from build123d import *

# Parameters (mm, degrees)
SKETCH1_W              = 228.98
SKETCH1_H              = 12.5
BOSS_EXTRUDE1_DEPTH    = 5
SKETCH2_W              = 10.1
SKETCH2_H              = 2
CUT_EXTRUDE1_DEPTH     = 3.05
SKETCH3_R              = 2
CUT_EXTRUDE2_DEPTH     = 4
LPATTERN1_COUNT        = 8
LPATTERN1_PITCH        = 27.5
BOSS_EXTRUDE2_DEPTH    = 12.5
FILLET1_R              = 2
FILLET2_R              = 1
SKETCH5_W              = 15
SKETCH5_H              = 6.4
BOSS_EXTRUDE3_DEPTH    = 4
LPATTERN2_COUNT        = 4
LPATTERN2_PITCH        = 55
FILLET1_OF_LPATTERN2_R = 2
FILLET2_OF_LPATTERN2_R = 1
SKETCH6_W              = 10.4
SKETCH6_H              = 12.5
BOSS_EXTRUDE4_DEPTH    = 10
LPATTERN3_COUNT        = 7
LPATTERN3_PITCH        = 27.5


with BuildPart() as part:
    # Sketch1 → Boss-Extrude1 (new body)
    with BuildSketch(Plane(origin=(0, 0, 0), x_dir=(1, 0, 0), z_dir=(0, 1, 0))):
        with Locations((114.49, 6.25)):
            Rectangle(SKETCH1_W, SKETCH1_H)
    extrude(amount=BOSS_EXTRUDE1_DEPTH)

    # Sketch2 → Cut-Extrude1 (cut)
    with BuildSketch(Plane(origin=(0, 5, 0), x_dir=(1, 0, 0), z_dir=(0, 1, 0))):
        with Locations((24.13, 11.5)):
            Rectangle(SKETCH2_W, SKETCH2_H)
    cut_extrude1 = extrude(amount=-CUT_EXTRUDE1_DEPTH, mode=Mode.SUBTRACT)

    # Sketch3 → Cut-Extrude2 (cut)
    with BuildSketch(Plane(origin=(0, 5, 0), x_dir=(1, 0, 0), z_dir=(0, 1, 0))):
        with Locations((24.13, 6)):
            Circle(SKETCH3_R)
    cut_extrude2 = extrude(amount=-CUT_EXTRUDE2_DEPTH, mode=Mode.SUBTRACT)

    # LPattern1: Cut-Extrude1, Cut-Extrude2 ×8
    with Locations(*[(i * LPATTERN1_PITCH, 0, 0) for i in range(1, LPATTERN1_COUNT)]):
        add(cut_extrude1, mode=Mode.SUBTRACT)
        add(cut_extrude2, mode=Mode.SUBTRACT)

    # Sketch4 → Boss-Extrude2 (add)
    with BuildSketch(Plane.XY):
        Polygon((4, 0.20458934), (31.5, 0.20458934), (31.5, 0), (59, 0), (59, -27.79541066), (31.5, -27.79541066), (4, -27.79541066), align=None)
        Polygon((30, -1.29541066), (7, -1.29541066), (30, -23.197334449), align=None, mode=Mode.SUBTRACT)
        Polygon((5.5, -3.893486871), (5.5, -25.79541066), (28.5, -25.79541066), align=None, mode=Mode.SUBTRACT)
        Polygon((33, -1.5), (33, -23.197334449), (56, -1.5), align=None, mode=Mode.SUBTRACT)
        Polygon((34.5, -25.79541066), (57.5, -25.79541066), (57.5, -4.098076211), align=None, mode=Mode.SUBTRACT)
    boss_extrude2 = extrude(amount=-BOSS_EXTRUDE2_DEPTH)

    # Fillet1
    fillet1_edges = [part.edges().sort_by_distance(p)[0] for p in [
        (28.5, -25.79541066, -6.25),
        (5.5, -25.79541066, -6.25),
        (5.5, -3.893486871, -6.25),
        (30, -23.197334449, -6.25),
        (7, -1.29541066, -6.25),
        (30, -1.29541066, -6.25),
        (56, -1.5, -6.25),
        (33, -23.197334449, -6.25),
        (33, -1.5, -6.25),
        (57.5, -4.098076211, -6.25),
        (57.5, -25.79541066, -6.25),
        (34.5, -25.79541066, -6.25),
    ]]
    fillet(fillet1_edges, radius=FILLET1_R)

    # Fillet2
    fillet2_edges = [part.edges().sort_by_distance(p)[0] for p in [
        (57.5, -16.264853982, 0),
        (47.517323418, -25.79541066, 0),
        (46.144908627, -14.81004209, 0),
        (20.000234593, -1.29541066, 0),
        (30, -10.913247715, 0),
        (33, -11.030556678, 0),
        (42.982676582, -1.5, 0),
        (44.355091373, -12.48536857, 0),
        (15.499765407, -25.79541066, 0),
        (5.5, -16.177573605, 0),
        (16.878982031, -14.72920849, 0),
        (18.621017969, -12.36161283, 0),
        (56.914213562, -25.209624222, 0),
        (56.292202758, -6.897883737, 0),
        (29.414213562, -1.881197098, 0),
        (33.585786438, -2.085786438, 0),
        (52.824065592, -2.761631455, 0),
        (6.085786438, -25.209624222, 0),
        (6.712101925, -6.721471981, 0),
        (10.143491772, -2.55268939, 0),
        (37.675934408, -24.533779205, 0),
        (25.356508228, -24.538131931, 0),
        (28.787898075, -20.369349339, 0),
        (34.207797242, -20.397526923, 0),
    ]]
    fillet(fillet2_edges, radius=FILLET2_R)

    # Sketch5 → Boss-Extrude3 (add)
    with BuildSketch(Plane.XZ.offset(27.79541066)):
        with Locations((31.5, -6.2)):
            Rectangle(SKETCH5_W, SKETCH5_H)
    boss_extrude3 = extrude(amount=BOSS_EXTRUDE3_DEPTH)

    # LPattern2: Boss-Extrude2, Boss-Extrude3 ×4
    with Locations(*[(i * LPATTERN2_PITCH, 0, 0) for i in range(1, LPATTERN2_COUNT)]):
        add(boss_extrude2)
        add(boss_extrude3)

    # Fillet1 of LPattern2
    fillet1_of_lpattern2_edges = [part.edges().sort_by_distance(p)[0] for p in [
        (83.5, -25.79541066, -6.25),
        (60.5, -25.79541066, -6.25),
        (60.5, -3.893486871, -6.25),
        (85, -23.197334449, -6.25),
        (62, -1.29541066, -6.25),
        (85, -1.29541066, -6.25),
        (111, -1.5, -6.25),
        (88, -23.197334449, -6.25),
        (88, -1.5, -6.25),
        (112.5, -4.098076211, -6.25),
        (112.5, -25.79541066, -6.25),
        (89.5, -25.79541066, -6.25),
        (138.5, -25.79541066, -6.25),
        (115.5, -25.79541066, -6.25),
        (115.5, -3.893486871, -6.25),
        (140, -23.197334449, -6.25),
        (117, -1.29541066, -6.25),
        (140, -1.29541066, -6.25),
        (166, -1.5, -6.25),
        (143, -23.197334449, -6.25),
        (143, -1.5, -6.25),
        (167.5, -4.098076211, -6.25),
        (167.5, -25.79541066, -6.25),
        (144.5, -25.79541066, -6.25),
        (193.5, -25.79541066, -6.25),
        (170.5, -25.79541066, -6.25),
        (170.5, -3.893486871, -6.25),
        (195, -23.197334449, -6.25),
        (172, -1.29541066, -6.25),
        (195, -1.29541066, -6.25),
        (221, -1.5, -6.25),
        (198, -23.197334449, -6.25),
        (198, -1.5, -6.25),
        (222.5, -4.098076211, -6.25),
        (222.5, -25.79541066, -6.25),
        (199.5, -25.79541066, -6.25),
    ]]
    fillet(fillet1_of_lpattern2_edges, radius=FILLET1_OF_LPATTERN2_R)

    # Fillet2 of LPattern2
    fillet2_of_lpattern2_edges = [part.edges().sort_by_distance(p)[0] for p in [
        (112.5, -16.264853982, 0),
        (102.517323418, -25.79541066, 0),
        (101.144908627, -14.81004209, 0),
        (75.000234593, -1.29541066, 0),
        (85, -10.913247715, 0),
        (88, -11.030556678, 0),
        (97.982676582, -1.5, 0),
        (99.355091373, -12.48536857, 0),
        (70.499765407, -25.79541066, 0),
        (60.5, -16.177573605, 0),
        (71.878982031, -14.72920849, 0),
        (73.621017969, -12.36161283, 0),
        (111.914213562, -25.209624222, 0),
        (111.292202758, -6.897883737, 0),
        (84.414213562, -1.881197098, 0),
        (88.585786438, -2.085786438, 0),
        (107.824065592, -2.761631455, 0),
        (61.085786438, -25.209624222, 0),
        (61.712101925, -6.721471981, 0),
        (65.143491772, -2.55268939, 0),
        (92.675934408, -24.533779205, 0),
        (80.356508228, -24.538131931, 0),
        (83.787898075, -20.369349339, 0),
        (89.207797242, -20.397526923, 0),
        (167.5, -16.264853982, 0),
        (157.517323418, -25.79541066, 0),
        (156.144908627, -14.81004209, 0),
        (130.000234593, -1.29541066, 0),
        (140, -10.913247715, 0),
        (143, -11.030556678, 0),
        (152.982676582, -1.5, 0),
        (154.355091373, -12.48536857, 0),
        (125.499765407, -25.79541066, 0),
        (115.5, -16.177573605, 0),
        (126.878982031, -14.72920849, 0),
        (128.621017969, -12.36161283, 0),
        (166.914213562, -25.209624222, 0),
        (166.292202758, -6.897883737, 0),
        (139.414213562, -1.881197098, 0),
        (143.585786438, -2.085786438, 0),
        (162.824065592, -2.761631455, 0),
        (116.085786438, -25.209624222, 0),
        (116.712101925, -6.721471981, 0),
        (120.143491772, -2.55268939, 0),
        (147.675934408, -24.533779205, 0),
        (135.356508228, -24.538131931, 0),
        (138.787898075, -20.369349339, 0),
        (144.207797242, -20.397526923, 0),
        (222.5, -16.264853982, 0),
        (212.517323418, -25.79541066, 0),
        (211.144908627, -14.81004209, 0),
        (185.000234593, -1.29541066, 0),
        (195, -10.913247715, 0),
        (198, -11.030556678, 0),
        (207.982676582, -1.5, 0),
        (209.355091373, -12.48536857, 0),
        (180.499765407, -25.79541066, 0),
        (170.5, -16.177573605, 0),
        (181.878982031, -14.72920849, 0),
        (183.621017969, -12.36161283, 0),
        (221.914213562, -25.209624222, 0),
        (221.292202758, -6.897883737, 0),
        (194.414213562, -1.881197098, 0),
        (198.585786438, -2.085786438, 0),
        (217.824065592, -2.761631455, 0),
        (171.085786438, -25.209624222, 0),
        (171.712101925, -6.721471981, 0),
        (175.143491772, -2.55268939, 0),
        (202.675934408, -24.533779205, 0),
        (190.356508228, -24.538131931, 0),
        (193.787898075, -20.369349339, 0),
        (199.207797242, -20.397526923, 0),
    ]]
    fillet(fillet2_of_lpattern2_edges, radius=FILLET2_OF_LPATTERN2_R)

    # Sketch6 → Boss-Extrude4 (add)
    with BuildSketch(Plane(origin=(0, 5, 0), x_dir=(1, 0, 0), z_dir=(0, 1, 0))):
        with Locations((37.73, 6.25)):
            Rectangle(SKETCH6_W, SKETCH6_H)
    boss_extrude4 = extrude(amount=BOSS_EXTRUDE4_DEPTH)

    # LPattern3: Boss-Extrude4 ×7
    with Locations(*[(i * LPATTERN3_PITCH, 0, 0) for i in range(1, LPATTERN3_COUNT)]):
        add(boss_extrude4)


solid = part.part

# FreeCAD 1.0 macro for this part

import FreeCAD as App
import Part
import Sketcher

V = App.Vector


def edges_at(feature, points):
    """Names of the edges that pass closest to the given points."""
    edges = feature.Shape.Edges
    near = lambda p: min(range(len(edges)), key=lambda i: edges[i].distToShape(Part.Vertex(*p))[0])
    return sorted({f"Edge{near(p) + 1}" for p in points})

doc = App.newDocument("Part")
body = doc.addObject("PartDesign::Body", "Body")

# Sketch on XZ plane
sketch1 = body.newObject("Sketcher::SketchObject", "Sketch")
sketch1.AttachmentSupport = (doc.getObject("XZ_Plane"), [""])
sketch1.MapMode = "FlatFace"
sketch1.addGeometry([
    Part.LineSegment(V(0, -12, 0), V(0, 0, 0)),
    Part.LineSegment(V(0, 0, 0), V(229, 0, 0)),
    Part.LineSegment(V(229, 0, 0), V(229, -12, 0)),
    Part.LineSegment(V(229, -12, 0), V(0, -12, 0)),
], False)
sketch1.addConstraint([
    Sketcher.Constraint("Coincident", 0, 2, 1, 1),
    Sketcher.Constraint("Coincident", 1, 2, 2, 1),
    Sketcher.Constraint("Coincident", 2, 2, 3, 1),
    Sketcher.Constraint("Coincident", 3, 2, 0, 1),
    Sketcher.Constraint("Vertical", 0),
    Sketcher.Constraint("Horizontal", 1),
    Sketcher.Constraint("Vertical", 2),
    Sketcher.Constraint("Horizontal", 3),
    Sketcher.Constraint("Coincident", 0, 2, -1, 1),
    Sketcher.Constraint("DistanceY", 0, 1, 0, 2, 12.5),
    Sketcher.Constraint("DistanceX", 1, 1, 1, 2, 228.98),
])
pad1 = body.newObject("PartDesign::Pad", "Pad")
pad1.Profile = sketch1
pad1.Length = 5
pad1.Reversed = True

# Sketch on XZ plane
sketch2 = body.newObject("Sketcher::SketchObject", "Sketch001")
sketch2.AttachmentSupport = (doc.getObject("XZ_Plane"), [""])
sketch2.MapMode = "FlatFace"
sketch2.AttachmentOffset = App.Placement(V(0, 0, -5), App.Rotation())
sketch2.addGeometry([
    Part.LineSegment(V(19.1, -12.5, 0), V(19.1, -10.5, 0)),
    Part.LineSegment(V(19.1, -10.5, 0), V(29.2, -10.5, 0)),
    Part.LineSegment(V(29.2, -10.5, 0), V(29.2, -12.5, 0)),
    Part.LineSegment(V(29.2, -12.5, 0), V(19.1, -12.5, 0)),
], False)
sketch2.addConstraint([
    Sketcher.Constraint("Coincident", 0, 2, 1, 1),
    Sketcher.Constraint("Coincident", 1, 2, 2, 1),
    Sketcher.Constraint("Coincident", 2, 2, 3, 1),
    Sketcher.Constraint("Coincident", 3, 2, 0, 1),
    Sketcher.Constraint("Vertical", 0),
    Sketcher.Constraint("Horizontal", 1),
    Sketcher.Constraint("Vertical", 2),
    Sketcher.Constraint("Horizontal", 3),
    Sketcher.Constraint("DistanceY", 0, 1, 0, 2, 2.0),
    Sketcher.Constraint("DistanceX", 1, 1, 1, 2, 10.1),
    Sketcher.Constraint("DistanceY", 0, 2, -1, 1, 10.5),
    Sketcher.Constraint("DistanceX", -1, 1, 0, 2, 19.08),
])
pocket1 = body.newObject("PartDesign::Pocket", "Pocket")
pocket1.Profile = sketch2
pocket1.Length = 3.05
pocket1.Reversed = True

# Sketch on XZ plane
sketch3 = body.newObject("Sketcher::SketchObject", "Sketch002")
sketch3.AttachmentSupport = (doc.getObject("XZ_Plane"), [""])
sketch3.MapMode = "FlatFace"
sketch3.AttachmentOffset = App.Placement(V(0, 0, -5), App.Rotation())
sketch3.addGeometry(Part.Circle(V(24.1, -6, 0), V(0, 0, 1), 2), False)
sketch3.addConstraint([
    Sketcher.Constraint("Diameter", 0, 4.0),
    Sketcher.Constraint("DistanceY", 0, 3, -1, 1, 6.0),
    Sketcher.Constraint("DistanceX", -1, 1, 0, 3, 24.13),
])
pocket2 = body.newObject("PartDesign::Pocket", "Pocket001")
pocket2.Profile = sketch3
pocket2.Length = 4
pocket2.Reversed = True
doc.recompute()

linearpattern = body.newObject("PartDesign::LinearPattern", "LinearPattern")
linearpattern.Originals = [pocket1, pocket2]
linearpattern.Direction = (doc.getObject("X_Axis"), [""])
linearpattern.Mode = "offset"
linearpattern.Offset = 27.5
linearpattern.Occurrences = 8
body.Tip = linearpattern

# Sketch on XY plane
sketch4 = body.newObject("Sketcher::SketchObject", "Sketch003")
sketch4.AttachmentSupport = (doc.getObject("XY_Plane"), [""])
sketch4.MapMode = "FlatFace"
sketch4.addGeometry([
    Part.LineSegment(V(31.5, 0.2, 0), V(4, 0.2, 0)),  # 0
    Part.LineSegment(V(4, 0.2, 0), V(4, -27.8, 0)),  # 1
    Part.LineSegment(V(4, -27.8, 0), V(59, -27.8, 0)),  # 2
    Part.LineSegment(V(59, -27.8, 0), V(59, 0, 0)),  # 3
    Part.LineSegment(V(59, 0, 0), V(31.5, 0, 0)),  # 4
    Part.LineSegment(V(31.5, 0, 0), V(31.5, 0.2, 0)),  # 5
    Part.LineSegment(V(34.5, -25.8, 0), V(57.5, -4.1, 0)),  # 6
    Part.LineSegment(V(57.5, -4.1, 0), V(57.5, -25.8, 0)),  # 7
    Part.LineSegment(V(57.5, -25.8, 0), V(34.5, -25.8, 0)),  # 8
    Part.LineSegment(V(5.5, -3.89, 0), V(28.5, -25.8, 0)),  # 9
    Part.LineSegment(V(28.5, -25.8, 0), V(5.5, -25.8, 0)),  # 10
    Part.LineSegment(V(5.5, -25.8, 0), V(5.5, -3.89, 0)),  # 11
    Part.LineSegment(V(33, -1.5, 0), V(56, -1.5, 0)),  # 12
    Part.LineSegment(V(56, -1.5, 0), V(33, -23.2, 0)),  # 13
    Part.LineSegment(V(33, -23.2, 0), V(33, -1.5, 0)),  # 14
    Part.LineSegment(V(30, -1.3, 0), V(30, -23.2, 0)),  # 15
    Part.LineSegment(V(30, -23.2, 0), V(7, -1.3, 0)),  # 16
    Part.LineSegment(V(7, -1.3, 0), V(30, -1.3, 0)),  # 17
], False)
sketch4.addConstraint([
    Sketcher.Constraint("Coincident", 0, 2, 1, 1),
    Sketcher.Constraint("Coincident", 1, 2, 2, 1),
    Sketcher.Constraint("Coincident", 2, 2, 3, 1),
    Sketcher.Constraint("Coincident", 3, 2, 4, 1),
    Sketcher.Constraint("Coincident", 4, 2, 5, 1),
    Sketcher.Constraint("Coincident", 5, 2, 0, 1),
    Sketcher.Constraint("Coincident", 6, 2, 7, 1),
    Sketcher.Constraint("Coincident", 7, 2, 8, 1),
    Sketcher.Constraint("Coincident", 8, 2, 6, 1),
    Sketcher.Constraint("Coincident", 9, 2, 10, 1),
    Sketcher.Constraint("Coincident", 10, 2, 11, 1),
    Sketcher.Constraint("Coincident", 11, 2, 9, 1),
    Sketcher.Constraint("Coincident", 12, 2, 13, 1),
    Sketcher.Constraint("Coincident", 13, 2, 14, 1),
    Sketcher.Constraint("Coincident", 14, 2, 12, 1),
    Sketcher.Constraint("Coincident", 15, 2, 16, 1),
    Sketcher.Constraint("Coincident", 16, 2, 17, 1),
    Sketcher.Constraint("Coincident", 17, 2, 15, 1),
    Sketcher.Constraint("Horizontal", 0),
    Sketcher.Constraint("Vertical", 1),
    Sketcher.Constraint("Horizontal", 2),
    Sketcher.Constraint("Vertical", 3),
    Sketcher.Constraint("Horizontal", 4),
    Sketcher.Constraint("Vertical", 5),
    Sketcher.Constraint("Vertical", 7),
    Sketcher.Constraint("Horizontal", 8),
    Sketcher.Constraint("Horizontal", 10),
    Sketcher.Constraint("Vertical", 11),
    Sketcher.Constraint("Horizontal", 12),
    Sketcher.Constraint("Vertical", 14),
    Sketcher.Constraint("Vertical", 15),
    Sketcher.Constraint("Horizontal", 17),
    Sketcher.Constraint("PointOnObject", 3, 2, -1),
    Sketcher.Constraint("Parallel", 6, 13),
    Sketcher.Constraint("Parallel", 9, 16),
    Sketcher.Constraint("Horizontal", 8, 2, 9, 2),
    Sketcher.Constraint("Horizontal", 13, 2, 15, 2),
    Sketcher.Constraint("Equal", 0, 4),
    Sketcher.Constraint("Equal", 8, 10),
    Sketcher.Constraint("Equal", 10, 12),
    Sketcher.Constraint("Equal", 12, 17),
    Sketcher.Constraint("DistanceX", 2, 1, 2, 2, 55.0),
    Sketcher.Constraint("DistanceX", 8, 2, 8, 1, 23.0),
    Sketcher.Constraint("DistanceY", 1, 2, 1, 1, 28.0),
    Sketcher.Constraint("DistanceX", -1, 1, 0, 2, 4.0),
    Sketcher.Constraint("DistanceX", -1, 1, 12, 2, 56.0),
    Sketcher.Constraint("DistanceX", -1, 1, 15, 2, 30.0),
    Sketcher.Constraint("DistanceX", 4, 2, 6, 2, 26.0),
    Sketcher.Constraint("DistanceY", 2, 2, 7, 2, 2.0),
    Sketcher.Constraint("DistanceX", 9, 2, 8, 2, 6.0),
    Sketcher.Constraint("DistanceY", 12, 2, -1, 1, 1.5),
    Sketcher.Constraint("DistanceY", 16, 2, 0, 2, 1.5),
    Sketcher.Constraint("DistanceY", 3, 1, 3, 2, 27.795411),
    Sketcher.Constraint("Distance", 6, 31.619208),
])
pad2 = body.newObject("PartDesign::Pad", "Pad001")
pad2.Profile = sketch4
pad2.Length = 12.5
pad2.Reversed = True
doc.recompute()

fillet = body.newObject("PartDesign::Fillet", "Fillet")
fillet.Base = (pad2, edges_at(pad2, [
    (28.5, -25.795, -6.25),
    (5.5, -25.795, -6.25),
    (5.5, -3.893, -6.25),
    (30, -23.197, -6.25),
    (7, -1.295, -6.25),
    (30, -1.295, -6.25),
    (56, -1.5, -6.25),
    (33, -23.197, -6.25),
    (33, -1.5, -6.25),
    (57.5, -4.098, -6.25),
    (57.5, -25.795, -6.25),
    (34.5, -25.795, -6.25),
]))
fillet.Radius = 2
doc.recompute()

fillet2 = body.newObject("PartDesign::Fillet", "Fillet001")
fillet2.Base = (fillet, edges_at(fillet, [
    (57.5, -16.265, 0),
    (47.517, -25.795, 0),
    (46.145, -14.81, 0),
    (20, -1.295, 0),
    (30, -10.913, 0),
    (33, -11.031, 0),
    (42.983, -1.5, 0),
    (44.355, -12.485, 0),
    (15.5, -25.795, 0),
    (5.5, -16.178, 0),
    (16.879, -14.729, 0),
    (18.621, -12.362, 0),
    (56.914, -25.21, 0),
    (56.292, -6.898, 0),
    (29.414, -1.881, 0),
    (33.586, -2.086, 0),
    (52.824, -2.762, 0),
    (6.086, -25.21, 0),
    (6.712, -6.721, 0),
    (10.143, -2.553, 0),
    (37.676, -24.534, 0),
    (25.357, -24.538, 0),
    (28.788, -20.369, 0),
    (34.208, -20.398, 0),
]))
fillet2.Radius = 1

# Sketch on XZ plane
sketch5 = body.newObject("Sketcher::SketchObject", "Sketch004")
sketch5.AttachmentSupport = (doc.getObject("XZ_Plane"), [""])
sketch5.MapMode = "FlatFace"
sketch5.AttachmentOffset = App.Placement(V(0, 0, 27.795411), App.Rotation())
sketch5.addGeometry([
    Part.LineSegment(V(24, -3, 0), V(24, -9, 0)),
    Part.LineSegment(V(24, -9, 0), V(39, -9, 0)),
    Part.LineSegment(V(39, -9, 0), V(39, -3, 0)),
    Part.LineSegment(V(39, -3, 0), V(24, -3, 0)),
], False)
sketch5.addConstraint([
    Sketcher.Constraint("Coincident", 0, 2, 1, 1),
    Sketcher.Constraint("Coincident", 1, 2, 2, 1),
    Sketcher.Constraint("Coincident", 2, 2, 3, 1),
    Sketcher.Constraint("Coincident", 3, 2, 0, 1),
    Sketcher.Constraint("Vertical", 0),
    Sketcher.Constraint("Horizontal", 1),
    Sketcher.Constraint("Vertical", 2),
    Sketcher.Constraint("Horizontal", 3),
    Sketcher.Constraint("DistanceX", 1, 1, 1, 2, 15.0),
    Sketcher.Constraint("DistanceY", 0, 2, 0, 1, 6.4),
    Sketcher.Constraint("DistanceX", -1, 1, 0, 2, 24.0),
    Sketcher.Constraint("DistanceY", 2, 2, -1, 1, 3.0),
])
pad3 = body.newObject("PartDesign::Pad", "Pad002")
pad3.Profile = sketch5
pad3.Length = 4
doc.recompute()

linearpattern2 = body.newObject("PartDesign::LinearPattern", "LinearPattern001")
linearpattern2.Originals = [pad2, pad3]
linearpattern2.Direction = (doc.getObject("X_Axis"), [""])
linearpattern2.Mode = "offset"
linearpattern2.Offset = 55
linearpattern2.Occurrences = 4
body.Tip = linearpattern2
doc.recompute()

fillet3 = body.newObject("PartDesign::Fillet", "Fillet002")
fillet3.Base = (linearpattern2, edges_at(linearpattern2, [
    (83.5, -25.795, -6.25),
    (60.5, -25.795, -6.25),
    (60.5, -3.893, -6.25),
    (85, -23.197, -6.25),
    (62, -1.295, -6.25),
    (85, -1.295, -6.25),
    (111, -1.5, -6.25),
    (88, -23.197, -6.25),
    (88, -1.5, -6.25),
    (112.5, -4.098, -6.25),
    (112.5, -25.795, -6.25),
    (89.5, -25.795, -6.25),
    (138.5, -25.795, -6.25),
    (115.5, -25.795, -6.25),
    (115.5, -3.893, -6.25),
    (140, -23.197, -6.25),
    (117, -1.295, -6.25),
    (140, -1.295, -6.25),
    (166, -1.5, -6.25),
    (143, -23.197, -6.25),
    (143, -1.5, -6.25),
    (167.5, -4.098, -6.25),
    (167.5, -25.795, -6.25),
    (144.5, -25.795, -6.25),
    (193.5, -25.795, -6.25),
    (170.5, -25.795, -6.25),
    (170.5, -3.893, -6.25),
    (195, -23.197, -6.25),
    (172, -1.295, -6.25),
    (195, -1.295, -6.25),
    (221, -1.5, -6.25),
    (198, -23.197, -6.25),
    (198, -1.5, -6.25),
    (222.5, -4.098, -6.25),
    (222.5, -25.795, -6.25),
    (199.5, -25.795, -6.25),
]))
fillet3.Radius = 2
doc.recompute()

fillet4 = body.newObject("PartDesign::Fillet", "Fillet003")
fillet4.Base = (fillet3, edges_at(fillet3, [
    (112.5, -16.265, 0),
    (102.517, -25.795, 0),
    (101.145, -14.81, 0),
    (75, -1.295, 0),
    (85, -10.913, 0),
    (88, -11.031, 0),
    (97.983, -1.5, 0),
    (99.355, -12.485, 0),
    (70.5, -25.795, 0),
    (60.5, -16.178, 0),
    (71.879, -14.729, 0),
    (73.621, -12.362, 0),
    (111.914, -25.21, 0),
    (111.292, -6.898, 0),
    (84.414, -1.881, 0),
    (88.586, -2.086, 0),
    (107.824, -2.762, 0),
    (61.086, -25.21, 0),
    (61.712, -6.721, 0),
    (65.143, -2.553, 0),
    (92.676, -24.534, 0),
    (80.357, -24.538, 0),
    (83.788, -20.369, 0),
    (89.208, -20.398, 0),
    (167.5, -16.265, 0),
    (157.517, -25.795, 0),
    (156.145, -14.81, 0),
    (130, -1.295, 0),
    (140, -10.913, 0),
    (143, -11.031, 0),
    (152.983, -1.5, 0),
    (154.355, -12.485, 0),
    (125.5, -25.795, 0),
    (115.5, -16.178, 0),
    (126.879, -14.729, 0),
    (128.621, -12.362, 0),
    (166.914, -25.21, 0),
    (166.292, -6.898, 0),
    (139.414, -1.881, 0),
    (143.586, -2.086, 0),
    (162.824, -2.762, 0),
    (116.086, -25.21, 0),
    (116.712, -6.721, 0),
    (120.143, -2.553, 0),
    (147.676, -24.534, 0),
    (135.357, -24.538, 0),
    (138.788, -20.369, 0),
    (144.208, -20.398, 0),
    (222.5, -16.265, 0),
    (212.517, -25.795, 0),
    (211.145, -14.81, 0),
    (185, -1.295, 0),
    (195, -10.913, 0),
    (198, -11.031, 0),
    (207.983, -1.5, 0),
    (209.355, -12.485, 0),
    (180.5, -25.795, 0),
    (170.5, -16.178, 0),
    (181.879, -14.729, 0),
    (183.621, -12.362, 0),
    (221.914, -25.21, 0),
    (221.292, -6.898, 0),
    (194.414, -1.881, 0),
    (198.586, -2.086, 0),
    (217.824, -2.762, 0),
    (171.086, -25.21, 0),
    (171.712, -6.721, 0),
    (175.143, -2.553, 0),
    (202.676, -24.534, 0),
    (190.357, -24.538, 0),
    (193.788, -20.369, 0),
    (199.208, -20.398, 0),
]))
fillet4.Radius = 1

# Sketch on XZ plane
sketch6 = body.newObject("Sketcher::SketchObject", "Sketch005")
sketch6.AttachmentSupport = (doc.getObject("XZ_Plane"), [""])
sketch6.MapMode = "FlatFace"
sketch6.AttachmentOffset = App.Placement(V(0, 0, -5), App.Rotation())
sketch6.addGeometry([
    Part.LineSegment(V(33, -12, 0), V(33, 0, 0)),
    Part.LineSegment(V(33, 0, 0), V(43, 0, 0)),
    Part.LineSegment(V(43, 0, 0), V(43, -12, 0)),
    Part.LineSegment(V(43, -12, 0), V(33, -12, 0)),
], False)
sketch6.addConstraint([
    Sketcher.Constraint("Coincident", 0, 2, 1, 1),
    Sketcher.Constraint("Coincident", 1, 2, 2, 1),
    Sketcher.Constraint("Coincident", 2, 2, 3, 1),
    Sketcher.Constraint("Coincident", 3, 2, 0, 1),
    Sketcher.Constraint("Vertical", 0),
    Sketcher.Constraint("Horizontal", 1),
    Sketcher.Constraint("Vertical", 2),
    Sketcher.Constraint("Horizontal", 3),
    Sketcher.Constraint("PointOnObject", 0, 2, -1),
    Sketcher.Constraint("DistanceX", 1, 1, 1, 2, 10.4),
    Sketcher.Constraint("DistanceY", 0, 1, 0, 2, 12.5),
    Sketcher.Constraint("DistanceX", -1, 1, 0, 2, 32.53),
])
pad4 = body.newObject("PartDesign::Pad", "Pad003")
pad4.Profile = sketch6
pad4.Length = 10
pad4.Reversed = True
doc.recompute()

linearpattern3 = body.newObject("PartDesign::LinearPattern", "LinearPattern002")
linearpattern3.Originals = [pad4]
linearpattern3.Direction = (doc.getObject("X_Axis"), [""])
linearpattern3.Mode = "offset"
linearpattern3.Offset = 27.5
linearpattern3.Occurrences = 7
body.Tip = linearpattern3

doc.recompute()
